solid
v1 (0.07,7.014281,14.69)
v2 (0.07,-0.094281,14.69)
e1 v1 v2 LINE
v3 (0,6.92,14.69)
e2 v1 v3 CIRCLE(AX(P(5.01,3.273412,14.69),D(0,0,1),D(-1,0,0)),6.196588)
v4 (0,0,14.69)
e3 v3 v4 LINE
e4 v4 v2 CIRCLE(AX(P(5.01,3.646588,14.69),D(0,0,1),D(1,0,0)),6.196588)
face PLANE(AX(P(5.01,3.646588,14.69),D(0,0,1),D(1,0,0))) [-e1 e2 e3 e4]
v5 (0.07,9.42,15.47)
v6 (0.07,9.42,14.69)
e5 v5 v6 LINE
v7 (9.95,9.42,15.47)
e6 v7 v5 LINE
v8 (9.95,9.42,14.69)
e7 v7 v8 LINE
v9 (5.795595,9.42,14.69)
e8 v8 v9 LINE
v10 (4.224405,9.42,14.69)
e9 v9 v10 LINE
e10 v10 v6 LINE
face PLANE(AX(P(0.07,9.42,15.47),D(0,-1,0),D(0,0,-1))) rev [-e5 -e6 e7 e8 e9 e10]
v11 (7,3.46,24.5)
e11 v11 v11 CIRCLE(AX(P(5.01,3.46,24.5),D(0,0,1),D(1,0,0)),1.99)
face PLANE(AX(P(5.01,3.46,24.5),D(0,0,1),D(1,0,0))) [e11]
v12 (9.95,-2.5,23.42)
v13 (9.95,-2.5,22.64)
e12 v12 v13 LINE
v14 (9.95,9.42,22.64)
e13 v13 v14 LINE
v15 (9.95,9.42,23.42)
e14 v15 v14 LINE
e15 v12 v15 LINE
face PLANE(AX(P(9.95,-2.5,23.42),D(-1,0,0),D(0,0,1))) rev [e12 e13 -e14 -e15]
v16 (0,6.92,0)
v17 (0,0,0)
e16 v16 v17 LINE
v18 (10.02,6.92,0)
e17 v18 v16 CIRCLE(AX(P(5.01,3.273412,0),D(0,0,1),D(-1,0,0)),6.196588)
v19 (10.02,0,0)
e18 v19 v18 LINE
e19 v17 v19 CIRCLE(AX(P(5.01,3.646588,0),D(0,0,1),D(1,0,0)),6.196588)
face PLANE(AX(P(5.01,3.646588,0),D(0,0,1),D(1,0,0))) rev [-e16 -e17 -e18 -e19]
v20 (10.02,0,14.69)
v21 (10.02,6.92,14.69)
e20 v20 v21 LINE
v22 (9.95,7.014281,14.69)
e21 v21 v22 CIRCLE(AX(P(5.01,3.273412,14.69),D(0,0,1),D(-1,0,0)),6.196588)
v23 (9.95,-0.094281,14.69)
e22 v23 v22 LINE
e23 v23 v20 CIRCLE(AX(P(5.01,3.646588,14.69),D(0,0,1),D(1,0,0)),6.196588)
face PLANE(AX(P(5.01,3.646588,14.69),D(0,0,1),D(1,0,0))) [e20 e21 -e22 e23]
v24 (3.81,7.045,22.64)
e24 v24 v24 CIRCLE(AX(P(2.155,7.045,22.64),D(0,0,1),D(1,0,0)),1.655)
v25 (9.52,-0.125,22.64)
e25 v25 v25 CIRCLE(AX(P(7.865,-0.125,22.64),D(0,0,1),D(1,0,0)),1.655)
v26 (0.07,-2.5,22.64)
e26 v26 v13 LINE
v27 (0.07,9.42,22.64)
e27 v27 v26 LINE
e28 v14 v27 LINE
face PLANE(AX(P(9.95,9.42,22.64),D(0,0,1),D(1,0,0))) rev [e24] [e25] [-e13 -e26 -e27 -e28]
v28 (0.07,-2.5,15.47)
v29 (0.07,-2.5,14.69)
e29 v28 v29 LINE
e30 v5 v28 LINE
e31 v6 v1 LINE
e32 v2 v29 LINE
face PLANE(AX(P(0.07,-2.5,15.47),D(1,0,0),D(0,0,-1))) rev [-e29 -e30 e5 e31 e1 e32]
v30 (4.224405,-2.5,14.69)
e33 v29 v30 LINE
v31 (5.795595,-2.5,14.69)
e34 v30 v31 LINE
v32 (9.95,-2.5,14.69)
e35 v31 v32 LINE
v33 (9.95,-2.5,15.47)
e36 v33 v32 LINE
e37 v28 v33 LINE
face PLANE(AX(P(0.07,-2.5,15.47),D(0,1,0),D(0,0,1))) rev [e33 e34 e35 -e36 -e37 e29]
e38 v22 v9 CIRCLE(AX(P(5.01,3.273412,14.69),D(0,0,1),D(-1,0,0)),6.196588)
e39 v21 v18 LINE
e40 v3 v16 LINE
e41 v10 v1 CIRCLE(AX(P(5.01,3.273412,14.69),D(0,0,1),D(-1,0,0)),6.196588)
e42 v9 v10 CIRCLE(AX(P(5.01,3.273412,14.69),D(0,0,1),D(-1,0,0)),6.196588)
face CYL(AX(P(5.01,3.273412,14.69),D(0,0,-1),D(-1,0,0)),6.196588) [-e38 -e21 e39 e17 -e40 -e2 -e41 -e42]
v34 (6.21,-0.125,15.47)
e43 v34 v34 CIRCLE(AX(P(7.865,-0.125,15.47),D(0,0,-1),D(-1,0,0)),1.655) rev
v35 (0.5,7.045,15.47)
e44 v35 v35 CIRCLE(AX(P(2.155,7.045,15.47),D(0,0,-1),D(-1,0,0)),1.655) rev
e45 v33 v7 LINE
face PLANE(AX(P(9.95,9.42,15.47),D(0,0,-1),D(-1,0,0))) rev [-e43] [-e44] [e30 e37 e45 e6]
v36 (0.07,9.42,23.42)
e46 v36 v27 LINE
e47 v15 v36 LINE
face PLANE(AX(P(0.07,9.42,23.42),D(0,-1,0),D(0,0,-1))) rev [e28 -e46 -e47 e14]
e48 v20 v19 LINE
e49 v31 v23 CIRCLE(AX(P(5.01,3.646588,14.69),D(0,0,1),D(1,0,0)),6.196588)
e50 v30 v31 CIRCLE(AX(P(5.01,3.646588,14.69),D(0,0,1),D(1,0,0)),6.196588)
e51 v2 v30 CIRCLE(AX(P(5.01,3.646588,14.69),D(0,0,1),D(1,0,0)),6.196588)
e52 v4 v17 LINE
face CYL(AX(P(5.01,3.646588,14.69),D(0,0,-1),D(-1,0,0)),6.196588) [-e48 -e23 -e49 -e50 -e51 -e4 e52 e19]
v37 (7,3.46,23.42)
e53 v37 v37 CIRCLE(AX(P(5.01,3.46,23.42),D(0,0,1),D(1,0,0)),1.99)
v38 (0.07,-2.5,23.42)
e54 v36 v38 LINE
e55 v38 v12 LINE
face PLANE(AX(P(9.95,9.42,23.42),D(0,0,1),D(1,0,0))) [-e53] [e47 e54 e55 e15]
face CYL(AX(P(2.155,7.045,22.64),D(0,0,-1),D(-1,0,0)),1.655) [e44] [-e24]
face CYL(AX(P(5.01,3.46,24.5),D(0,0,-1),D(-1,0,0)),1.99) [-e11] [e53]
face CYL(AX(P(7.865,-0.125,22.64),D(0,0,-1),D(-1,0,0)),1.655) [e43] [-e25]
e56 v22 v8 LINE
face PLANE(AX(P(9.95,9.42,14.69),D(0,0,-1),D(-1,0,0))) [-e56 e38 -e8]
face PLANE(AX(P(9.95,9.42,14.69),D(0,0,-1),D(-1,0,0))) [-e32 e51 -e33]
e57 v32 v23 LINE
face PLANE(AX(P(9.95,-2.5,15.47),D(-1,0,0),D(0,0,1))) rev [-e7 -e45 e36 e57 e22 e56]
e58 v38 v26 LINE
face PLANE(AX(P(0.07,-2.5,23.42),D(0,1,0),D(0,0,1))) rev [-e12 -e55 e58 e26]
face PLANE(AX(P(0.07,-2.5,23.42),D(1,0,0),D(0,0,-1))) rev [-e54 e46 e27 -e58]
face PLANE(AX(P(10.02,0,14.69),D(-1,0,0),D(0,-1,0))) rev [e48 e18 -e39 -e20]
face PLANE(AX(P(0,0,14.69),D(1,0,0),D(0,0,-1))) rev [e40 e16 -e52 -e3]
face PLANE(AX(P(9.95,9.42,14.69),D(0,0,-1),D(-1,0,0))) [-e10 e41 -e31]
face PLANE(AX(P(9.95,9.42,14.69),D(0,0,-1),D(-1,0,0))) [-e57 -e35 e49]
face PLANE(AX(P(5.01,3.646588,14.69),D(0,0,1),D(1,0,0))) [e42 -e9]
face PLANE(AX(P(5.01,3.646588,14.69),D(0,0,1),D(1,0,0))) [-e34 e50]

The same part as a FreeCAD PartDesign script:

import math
import FreeCAD as App
import Part
import Sketcher
Q = App.Units.Quantity


def add_polygon(sketch, points):
    """Adds a closed chain of lines whose ends are joined by coincident constraints."""
    first, n = sketch.GeometryCount, len(points)
    for a, b in zip(points, points[1:] + points[:1]):
        sketch.addGeometry(Part.LineSegment(App.Vector(*a, 0), App.Vector(*b, 0)), False)
    for i in range(n):
        sketch.addConstraint(Sketcher.Constraint("Coincident", first + i, 2, first + (i + 1) % n, 1))

doc = App.newDocument("Part")
body = doc.addObject("PartDesign::Body", "Body")

# Sketch on XY plane
sketch1 = body.newObject("Sketcher::SketchObject", "Sketch")
sketch1.AttachmentSupport = (doc.getObject("XY_Plane"), [""])
sketch1.MapMode = "FlatFace"
sketch1.addGeometry(Part.LineSegment(App.Vector(0, 7, 0), App.Vector(0, 0, 0)), False)
sketch1.addGeometry(Part.ArcOfCircle(Part.Circle(App.Vector(5, 4, 0), App.Vector(0, 0, 1), 6), math.radians(-144), math.radians(-36)), False)
sketch1.addGeometry(Part.LineSegment(App.Vector(10, 0, 0), App.Vector(10, 7, 0)), False)
sketch1.addGeometry(Part.ArcOfCircle(Part.Circle(App.Vector(5, 3, 0), App.Vector(0, 0, 1), 6), math.radians(36), math.radians(144)), False)
sketch1.addConstraint(Sketcher.Constraint("Coincident", 0, 2, 1, 1))
sketch1.addConstraint(Sketcher.Constraint("Coincident", 1, 2, 2, 1))
sketch1.addConstraint(Sketcher.Constraint("Coincident", 2, 2, 3, 1))
sketch1.addConstraint(Sketcher.Constraint("Coincident", 3, 2, 0, 1))
sketch1.addConstraint(Sketcher.Constraint("Vertical", 0))
sketch1.addConstraint(Sketcher.Constraint("Vertical", 2))
sketch1.addConstraint(Sketcher.Constraint("Coincident", 0, 2, -1, 1))
sketch1.addConstraint(Sketcher.Constraint("Equal", 1, 3))
sketch1.addConstraint(Sketcher.Constraint("PointOnObject", 1, 2, -1))
sketch1.addConstraint(Sketcher.Constraint("Horizontal", 2, 2, 3, 2))
sketch1.addConstraint(Sketcher.Constraint("DistanceY", 0, 2, 0, 1, Q("6.92 mm")))
sketch1.addConstraint(Sketcher.Constraint("DistanceX", -1, 1, 1, 3, Q("5.01 mm")))
sketch1.addConstraint(Sketcher.Constraint("Radius", 1, Q("6.196588 mm")))
pad1 = body.newObject("PartDesign::Pad", "Pad")
pad1.Profile = sketch1
pad1.Length = 14.69

# Sketch on XY plane
sketch2 = body.newObject("Sketcher::SketchObject", "Sketch001")
sketch2.AttachmentSupport = (doc.getObject("XY_Plane"), [""])
sketch2.MapMode = "FlatFace"
sketch2.AttachmentOffset = App.Placement(App.Vector(0, 0, 14.69), App.Rotation())
add_polygon(sketch2, [(0, 9), (0, -2), (10, -2), (10, 9)])  # lines 0-3
sketch2.addConstraint(Sketcher.Constraint("Vertical", 0))
sketch2.addConstraint(Sketcher.Constraint("Horizontal", 1))
sketch2.addConstraint(Sketcher.Constraint("Vertical", 2))
sketch2.addConstraint(Sketcher.Constraint("Horizontal", 3))
sketch2.addConstraint(Sketcher.Constraint("DistanceX", 1, 1, 1, 2, Q("9.88 mm")))
sketch2.addConstraint(Sketcher.Constraint("DistanceY", 0, 2, 0, 1, Q("11.92 mm")))
sketch2.addConstraint(Sketcher.Constraint("DistanceY", 0, 2, -1, 1, Q("2.5 mm")))
sketch2.addConstraint(Sketcher.Constraint("DistanceX", -1, 1, 0, 2, Q("0.07 mm")))
pad2 = body.newObject("PartDesign::Pad", "Pad001")
pad2.Profile = sketch2
pad2.Length = 0.78

# Sketch on XY plane
sketch3 = body.newObject("Sketcher::SketchObject", "Sketch002")
sketch3.AttachmentSupport = (doc.getObject("XY_Plane"), [""])
sketch3.MapMode = "FlatFace"
sketch3.AttachmentOffset = App.Placement(App.Vector(0, 0, 15.47), App.Rotation())
sketch3.addGeometry(Part.Circle(App.Vector(7.9, -0.1, 0), App.Vector(0, 0, 1), 1.7), False)
sketch3.addGeometry(Part.Circle(App.Vector(2.2, 7, 0), App.Vector(0, 0, 1), 1.7), False)
sketch3.addConstraint(Sketcher.Constraint("Equal", 0, 1))
sketch3.addConstraint(Sketcher.Constraint("Diameter", 0, Q("3.31 mm")))
sketch3.addConstraint(Sketcher.Constraint("DistanceX", 1, 3, 0, 3, Q("5.71 mm")))
sketch3.addConstraint(Sketcher.Constraint("DistanceY", 0, 3, 1, 3, Q("7.17 mm")))
sketch3.addConstraint(Sketcher.Constraint("DistanceX", -1, 1, 0, 3, Q("7.865 mm")))
sketch3.addConstraint(Sketcher.Constraint("DistanceY", 0, 3, -1, 1, Q("0.125 mm")))
pad3 = body.newObject("PartDesign::Pad", "Pad002")
pad3.Profile = sketch3
pad3.Length = 7.17

# Sketch on XY plane
sketch4 = body.newObject("Sketcher::SketchObject", "Sketch003")
sketch4.AttachmentSupport = (doc.getObject("XY_Plane"), [""])
sketch4.MapMode = "FlatFace"
sketch4.AttachmentOffset = App.Placement(App.Vector(0, 0, 22.64), App.Rotation())
add_polygon(sketch4, [(0, 9), (0, -2), (10, -2), (10, 9)])  # lines 0-3
sketch4.addConstraint(Sketcher.Constraint("Vertical", 0))
sketch4.addConstraint(Sketcher.Constraint("Horizontal", 1))
sketch4.addConstraint(Sketcher.Constraint("Vertical", 2))
sketch4.addConstraint(Sketcher.Constraint("Horizontal", 3))
sketch4.addConstraint(Sketcher.Constraint("DistanceX", 1, 1, 1, 2, Q("9.88 mm")))
sketch4.addConstraint(Sketcher.Constraint("DistanceY", 0, 2, 0, 1, Q("11.92 mm")))
sketch4.addConstraint(Sketcher.Constraint("DistanceY", 0, 2, -1, 1, Q("2.5 mm")))
sketch4.addConstraint(Sketcher.Constraint("DistanceX", -1, 1, 0, 2, Q("0.07 mm")))
pad4 = body.newObject("PartDesign::Pad", "Pad003")
pad4.Profile = sketch4
pad4.Length = 0.78

# Sketch on XY plane
sketch5 = body.newObject("Sketcher::SketchObject", "Sketch004")
sketch5.AttachmentSupport = (doc.getObject("XY_Plane"), [""])
sketch5.MapMode = "FlatFace"
sketch5.AttachmentOffset = App.Placement(App.Vector(0, 0, 23.42), App.Rotation())
sketch5.addGeometry(Part.Circle(App.Vector(5, 3.5, 0), App.Vector(0, 0, 1), 2), False)
sketch5.addConstraint(Sketcher.Constraint("Diameter", 0, Q("3.98 mm")))
sketch5.addConstraint(Sketcher.Constraint("DistanceX", -1, 1, 0, 3, Q("5.01 mm")))
sketch5.addConstraint(Sketcher.Constraint("DistanceY", -1, 1, 0, 3, Q("3.46 mm")))
pad5 = body.newObject("PartDesign::Pad", "Pad004")
pad5.Profile = sketch5
pad5.Length = 1.08

doc.recompute()
